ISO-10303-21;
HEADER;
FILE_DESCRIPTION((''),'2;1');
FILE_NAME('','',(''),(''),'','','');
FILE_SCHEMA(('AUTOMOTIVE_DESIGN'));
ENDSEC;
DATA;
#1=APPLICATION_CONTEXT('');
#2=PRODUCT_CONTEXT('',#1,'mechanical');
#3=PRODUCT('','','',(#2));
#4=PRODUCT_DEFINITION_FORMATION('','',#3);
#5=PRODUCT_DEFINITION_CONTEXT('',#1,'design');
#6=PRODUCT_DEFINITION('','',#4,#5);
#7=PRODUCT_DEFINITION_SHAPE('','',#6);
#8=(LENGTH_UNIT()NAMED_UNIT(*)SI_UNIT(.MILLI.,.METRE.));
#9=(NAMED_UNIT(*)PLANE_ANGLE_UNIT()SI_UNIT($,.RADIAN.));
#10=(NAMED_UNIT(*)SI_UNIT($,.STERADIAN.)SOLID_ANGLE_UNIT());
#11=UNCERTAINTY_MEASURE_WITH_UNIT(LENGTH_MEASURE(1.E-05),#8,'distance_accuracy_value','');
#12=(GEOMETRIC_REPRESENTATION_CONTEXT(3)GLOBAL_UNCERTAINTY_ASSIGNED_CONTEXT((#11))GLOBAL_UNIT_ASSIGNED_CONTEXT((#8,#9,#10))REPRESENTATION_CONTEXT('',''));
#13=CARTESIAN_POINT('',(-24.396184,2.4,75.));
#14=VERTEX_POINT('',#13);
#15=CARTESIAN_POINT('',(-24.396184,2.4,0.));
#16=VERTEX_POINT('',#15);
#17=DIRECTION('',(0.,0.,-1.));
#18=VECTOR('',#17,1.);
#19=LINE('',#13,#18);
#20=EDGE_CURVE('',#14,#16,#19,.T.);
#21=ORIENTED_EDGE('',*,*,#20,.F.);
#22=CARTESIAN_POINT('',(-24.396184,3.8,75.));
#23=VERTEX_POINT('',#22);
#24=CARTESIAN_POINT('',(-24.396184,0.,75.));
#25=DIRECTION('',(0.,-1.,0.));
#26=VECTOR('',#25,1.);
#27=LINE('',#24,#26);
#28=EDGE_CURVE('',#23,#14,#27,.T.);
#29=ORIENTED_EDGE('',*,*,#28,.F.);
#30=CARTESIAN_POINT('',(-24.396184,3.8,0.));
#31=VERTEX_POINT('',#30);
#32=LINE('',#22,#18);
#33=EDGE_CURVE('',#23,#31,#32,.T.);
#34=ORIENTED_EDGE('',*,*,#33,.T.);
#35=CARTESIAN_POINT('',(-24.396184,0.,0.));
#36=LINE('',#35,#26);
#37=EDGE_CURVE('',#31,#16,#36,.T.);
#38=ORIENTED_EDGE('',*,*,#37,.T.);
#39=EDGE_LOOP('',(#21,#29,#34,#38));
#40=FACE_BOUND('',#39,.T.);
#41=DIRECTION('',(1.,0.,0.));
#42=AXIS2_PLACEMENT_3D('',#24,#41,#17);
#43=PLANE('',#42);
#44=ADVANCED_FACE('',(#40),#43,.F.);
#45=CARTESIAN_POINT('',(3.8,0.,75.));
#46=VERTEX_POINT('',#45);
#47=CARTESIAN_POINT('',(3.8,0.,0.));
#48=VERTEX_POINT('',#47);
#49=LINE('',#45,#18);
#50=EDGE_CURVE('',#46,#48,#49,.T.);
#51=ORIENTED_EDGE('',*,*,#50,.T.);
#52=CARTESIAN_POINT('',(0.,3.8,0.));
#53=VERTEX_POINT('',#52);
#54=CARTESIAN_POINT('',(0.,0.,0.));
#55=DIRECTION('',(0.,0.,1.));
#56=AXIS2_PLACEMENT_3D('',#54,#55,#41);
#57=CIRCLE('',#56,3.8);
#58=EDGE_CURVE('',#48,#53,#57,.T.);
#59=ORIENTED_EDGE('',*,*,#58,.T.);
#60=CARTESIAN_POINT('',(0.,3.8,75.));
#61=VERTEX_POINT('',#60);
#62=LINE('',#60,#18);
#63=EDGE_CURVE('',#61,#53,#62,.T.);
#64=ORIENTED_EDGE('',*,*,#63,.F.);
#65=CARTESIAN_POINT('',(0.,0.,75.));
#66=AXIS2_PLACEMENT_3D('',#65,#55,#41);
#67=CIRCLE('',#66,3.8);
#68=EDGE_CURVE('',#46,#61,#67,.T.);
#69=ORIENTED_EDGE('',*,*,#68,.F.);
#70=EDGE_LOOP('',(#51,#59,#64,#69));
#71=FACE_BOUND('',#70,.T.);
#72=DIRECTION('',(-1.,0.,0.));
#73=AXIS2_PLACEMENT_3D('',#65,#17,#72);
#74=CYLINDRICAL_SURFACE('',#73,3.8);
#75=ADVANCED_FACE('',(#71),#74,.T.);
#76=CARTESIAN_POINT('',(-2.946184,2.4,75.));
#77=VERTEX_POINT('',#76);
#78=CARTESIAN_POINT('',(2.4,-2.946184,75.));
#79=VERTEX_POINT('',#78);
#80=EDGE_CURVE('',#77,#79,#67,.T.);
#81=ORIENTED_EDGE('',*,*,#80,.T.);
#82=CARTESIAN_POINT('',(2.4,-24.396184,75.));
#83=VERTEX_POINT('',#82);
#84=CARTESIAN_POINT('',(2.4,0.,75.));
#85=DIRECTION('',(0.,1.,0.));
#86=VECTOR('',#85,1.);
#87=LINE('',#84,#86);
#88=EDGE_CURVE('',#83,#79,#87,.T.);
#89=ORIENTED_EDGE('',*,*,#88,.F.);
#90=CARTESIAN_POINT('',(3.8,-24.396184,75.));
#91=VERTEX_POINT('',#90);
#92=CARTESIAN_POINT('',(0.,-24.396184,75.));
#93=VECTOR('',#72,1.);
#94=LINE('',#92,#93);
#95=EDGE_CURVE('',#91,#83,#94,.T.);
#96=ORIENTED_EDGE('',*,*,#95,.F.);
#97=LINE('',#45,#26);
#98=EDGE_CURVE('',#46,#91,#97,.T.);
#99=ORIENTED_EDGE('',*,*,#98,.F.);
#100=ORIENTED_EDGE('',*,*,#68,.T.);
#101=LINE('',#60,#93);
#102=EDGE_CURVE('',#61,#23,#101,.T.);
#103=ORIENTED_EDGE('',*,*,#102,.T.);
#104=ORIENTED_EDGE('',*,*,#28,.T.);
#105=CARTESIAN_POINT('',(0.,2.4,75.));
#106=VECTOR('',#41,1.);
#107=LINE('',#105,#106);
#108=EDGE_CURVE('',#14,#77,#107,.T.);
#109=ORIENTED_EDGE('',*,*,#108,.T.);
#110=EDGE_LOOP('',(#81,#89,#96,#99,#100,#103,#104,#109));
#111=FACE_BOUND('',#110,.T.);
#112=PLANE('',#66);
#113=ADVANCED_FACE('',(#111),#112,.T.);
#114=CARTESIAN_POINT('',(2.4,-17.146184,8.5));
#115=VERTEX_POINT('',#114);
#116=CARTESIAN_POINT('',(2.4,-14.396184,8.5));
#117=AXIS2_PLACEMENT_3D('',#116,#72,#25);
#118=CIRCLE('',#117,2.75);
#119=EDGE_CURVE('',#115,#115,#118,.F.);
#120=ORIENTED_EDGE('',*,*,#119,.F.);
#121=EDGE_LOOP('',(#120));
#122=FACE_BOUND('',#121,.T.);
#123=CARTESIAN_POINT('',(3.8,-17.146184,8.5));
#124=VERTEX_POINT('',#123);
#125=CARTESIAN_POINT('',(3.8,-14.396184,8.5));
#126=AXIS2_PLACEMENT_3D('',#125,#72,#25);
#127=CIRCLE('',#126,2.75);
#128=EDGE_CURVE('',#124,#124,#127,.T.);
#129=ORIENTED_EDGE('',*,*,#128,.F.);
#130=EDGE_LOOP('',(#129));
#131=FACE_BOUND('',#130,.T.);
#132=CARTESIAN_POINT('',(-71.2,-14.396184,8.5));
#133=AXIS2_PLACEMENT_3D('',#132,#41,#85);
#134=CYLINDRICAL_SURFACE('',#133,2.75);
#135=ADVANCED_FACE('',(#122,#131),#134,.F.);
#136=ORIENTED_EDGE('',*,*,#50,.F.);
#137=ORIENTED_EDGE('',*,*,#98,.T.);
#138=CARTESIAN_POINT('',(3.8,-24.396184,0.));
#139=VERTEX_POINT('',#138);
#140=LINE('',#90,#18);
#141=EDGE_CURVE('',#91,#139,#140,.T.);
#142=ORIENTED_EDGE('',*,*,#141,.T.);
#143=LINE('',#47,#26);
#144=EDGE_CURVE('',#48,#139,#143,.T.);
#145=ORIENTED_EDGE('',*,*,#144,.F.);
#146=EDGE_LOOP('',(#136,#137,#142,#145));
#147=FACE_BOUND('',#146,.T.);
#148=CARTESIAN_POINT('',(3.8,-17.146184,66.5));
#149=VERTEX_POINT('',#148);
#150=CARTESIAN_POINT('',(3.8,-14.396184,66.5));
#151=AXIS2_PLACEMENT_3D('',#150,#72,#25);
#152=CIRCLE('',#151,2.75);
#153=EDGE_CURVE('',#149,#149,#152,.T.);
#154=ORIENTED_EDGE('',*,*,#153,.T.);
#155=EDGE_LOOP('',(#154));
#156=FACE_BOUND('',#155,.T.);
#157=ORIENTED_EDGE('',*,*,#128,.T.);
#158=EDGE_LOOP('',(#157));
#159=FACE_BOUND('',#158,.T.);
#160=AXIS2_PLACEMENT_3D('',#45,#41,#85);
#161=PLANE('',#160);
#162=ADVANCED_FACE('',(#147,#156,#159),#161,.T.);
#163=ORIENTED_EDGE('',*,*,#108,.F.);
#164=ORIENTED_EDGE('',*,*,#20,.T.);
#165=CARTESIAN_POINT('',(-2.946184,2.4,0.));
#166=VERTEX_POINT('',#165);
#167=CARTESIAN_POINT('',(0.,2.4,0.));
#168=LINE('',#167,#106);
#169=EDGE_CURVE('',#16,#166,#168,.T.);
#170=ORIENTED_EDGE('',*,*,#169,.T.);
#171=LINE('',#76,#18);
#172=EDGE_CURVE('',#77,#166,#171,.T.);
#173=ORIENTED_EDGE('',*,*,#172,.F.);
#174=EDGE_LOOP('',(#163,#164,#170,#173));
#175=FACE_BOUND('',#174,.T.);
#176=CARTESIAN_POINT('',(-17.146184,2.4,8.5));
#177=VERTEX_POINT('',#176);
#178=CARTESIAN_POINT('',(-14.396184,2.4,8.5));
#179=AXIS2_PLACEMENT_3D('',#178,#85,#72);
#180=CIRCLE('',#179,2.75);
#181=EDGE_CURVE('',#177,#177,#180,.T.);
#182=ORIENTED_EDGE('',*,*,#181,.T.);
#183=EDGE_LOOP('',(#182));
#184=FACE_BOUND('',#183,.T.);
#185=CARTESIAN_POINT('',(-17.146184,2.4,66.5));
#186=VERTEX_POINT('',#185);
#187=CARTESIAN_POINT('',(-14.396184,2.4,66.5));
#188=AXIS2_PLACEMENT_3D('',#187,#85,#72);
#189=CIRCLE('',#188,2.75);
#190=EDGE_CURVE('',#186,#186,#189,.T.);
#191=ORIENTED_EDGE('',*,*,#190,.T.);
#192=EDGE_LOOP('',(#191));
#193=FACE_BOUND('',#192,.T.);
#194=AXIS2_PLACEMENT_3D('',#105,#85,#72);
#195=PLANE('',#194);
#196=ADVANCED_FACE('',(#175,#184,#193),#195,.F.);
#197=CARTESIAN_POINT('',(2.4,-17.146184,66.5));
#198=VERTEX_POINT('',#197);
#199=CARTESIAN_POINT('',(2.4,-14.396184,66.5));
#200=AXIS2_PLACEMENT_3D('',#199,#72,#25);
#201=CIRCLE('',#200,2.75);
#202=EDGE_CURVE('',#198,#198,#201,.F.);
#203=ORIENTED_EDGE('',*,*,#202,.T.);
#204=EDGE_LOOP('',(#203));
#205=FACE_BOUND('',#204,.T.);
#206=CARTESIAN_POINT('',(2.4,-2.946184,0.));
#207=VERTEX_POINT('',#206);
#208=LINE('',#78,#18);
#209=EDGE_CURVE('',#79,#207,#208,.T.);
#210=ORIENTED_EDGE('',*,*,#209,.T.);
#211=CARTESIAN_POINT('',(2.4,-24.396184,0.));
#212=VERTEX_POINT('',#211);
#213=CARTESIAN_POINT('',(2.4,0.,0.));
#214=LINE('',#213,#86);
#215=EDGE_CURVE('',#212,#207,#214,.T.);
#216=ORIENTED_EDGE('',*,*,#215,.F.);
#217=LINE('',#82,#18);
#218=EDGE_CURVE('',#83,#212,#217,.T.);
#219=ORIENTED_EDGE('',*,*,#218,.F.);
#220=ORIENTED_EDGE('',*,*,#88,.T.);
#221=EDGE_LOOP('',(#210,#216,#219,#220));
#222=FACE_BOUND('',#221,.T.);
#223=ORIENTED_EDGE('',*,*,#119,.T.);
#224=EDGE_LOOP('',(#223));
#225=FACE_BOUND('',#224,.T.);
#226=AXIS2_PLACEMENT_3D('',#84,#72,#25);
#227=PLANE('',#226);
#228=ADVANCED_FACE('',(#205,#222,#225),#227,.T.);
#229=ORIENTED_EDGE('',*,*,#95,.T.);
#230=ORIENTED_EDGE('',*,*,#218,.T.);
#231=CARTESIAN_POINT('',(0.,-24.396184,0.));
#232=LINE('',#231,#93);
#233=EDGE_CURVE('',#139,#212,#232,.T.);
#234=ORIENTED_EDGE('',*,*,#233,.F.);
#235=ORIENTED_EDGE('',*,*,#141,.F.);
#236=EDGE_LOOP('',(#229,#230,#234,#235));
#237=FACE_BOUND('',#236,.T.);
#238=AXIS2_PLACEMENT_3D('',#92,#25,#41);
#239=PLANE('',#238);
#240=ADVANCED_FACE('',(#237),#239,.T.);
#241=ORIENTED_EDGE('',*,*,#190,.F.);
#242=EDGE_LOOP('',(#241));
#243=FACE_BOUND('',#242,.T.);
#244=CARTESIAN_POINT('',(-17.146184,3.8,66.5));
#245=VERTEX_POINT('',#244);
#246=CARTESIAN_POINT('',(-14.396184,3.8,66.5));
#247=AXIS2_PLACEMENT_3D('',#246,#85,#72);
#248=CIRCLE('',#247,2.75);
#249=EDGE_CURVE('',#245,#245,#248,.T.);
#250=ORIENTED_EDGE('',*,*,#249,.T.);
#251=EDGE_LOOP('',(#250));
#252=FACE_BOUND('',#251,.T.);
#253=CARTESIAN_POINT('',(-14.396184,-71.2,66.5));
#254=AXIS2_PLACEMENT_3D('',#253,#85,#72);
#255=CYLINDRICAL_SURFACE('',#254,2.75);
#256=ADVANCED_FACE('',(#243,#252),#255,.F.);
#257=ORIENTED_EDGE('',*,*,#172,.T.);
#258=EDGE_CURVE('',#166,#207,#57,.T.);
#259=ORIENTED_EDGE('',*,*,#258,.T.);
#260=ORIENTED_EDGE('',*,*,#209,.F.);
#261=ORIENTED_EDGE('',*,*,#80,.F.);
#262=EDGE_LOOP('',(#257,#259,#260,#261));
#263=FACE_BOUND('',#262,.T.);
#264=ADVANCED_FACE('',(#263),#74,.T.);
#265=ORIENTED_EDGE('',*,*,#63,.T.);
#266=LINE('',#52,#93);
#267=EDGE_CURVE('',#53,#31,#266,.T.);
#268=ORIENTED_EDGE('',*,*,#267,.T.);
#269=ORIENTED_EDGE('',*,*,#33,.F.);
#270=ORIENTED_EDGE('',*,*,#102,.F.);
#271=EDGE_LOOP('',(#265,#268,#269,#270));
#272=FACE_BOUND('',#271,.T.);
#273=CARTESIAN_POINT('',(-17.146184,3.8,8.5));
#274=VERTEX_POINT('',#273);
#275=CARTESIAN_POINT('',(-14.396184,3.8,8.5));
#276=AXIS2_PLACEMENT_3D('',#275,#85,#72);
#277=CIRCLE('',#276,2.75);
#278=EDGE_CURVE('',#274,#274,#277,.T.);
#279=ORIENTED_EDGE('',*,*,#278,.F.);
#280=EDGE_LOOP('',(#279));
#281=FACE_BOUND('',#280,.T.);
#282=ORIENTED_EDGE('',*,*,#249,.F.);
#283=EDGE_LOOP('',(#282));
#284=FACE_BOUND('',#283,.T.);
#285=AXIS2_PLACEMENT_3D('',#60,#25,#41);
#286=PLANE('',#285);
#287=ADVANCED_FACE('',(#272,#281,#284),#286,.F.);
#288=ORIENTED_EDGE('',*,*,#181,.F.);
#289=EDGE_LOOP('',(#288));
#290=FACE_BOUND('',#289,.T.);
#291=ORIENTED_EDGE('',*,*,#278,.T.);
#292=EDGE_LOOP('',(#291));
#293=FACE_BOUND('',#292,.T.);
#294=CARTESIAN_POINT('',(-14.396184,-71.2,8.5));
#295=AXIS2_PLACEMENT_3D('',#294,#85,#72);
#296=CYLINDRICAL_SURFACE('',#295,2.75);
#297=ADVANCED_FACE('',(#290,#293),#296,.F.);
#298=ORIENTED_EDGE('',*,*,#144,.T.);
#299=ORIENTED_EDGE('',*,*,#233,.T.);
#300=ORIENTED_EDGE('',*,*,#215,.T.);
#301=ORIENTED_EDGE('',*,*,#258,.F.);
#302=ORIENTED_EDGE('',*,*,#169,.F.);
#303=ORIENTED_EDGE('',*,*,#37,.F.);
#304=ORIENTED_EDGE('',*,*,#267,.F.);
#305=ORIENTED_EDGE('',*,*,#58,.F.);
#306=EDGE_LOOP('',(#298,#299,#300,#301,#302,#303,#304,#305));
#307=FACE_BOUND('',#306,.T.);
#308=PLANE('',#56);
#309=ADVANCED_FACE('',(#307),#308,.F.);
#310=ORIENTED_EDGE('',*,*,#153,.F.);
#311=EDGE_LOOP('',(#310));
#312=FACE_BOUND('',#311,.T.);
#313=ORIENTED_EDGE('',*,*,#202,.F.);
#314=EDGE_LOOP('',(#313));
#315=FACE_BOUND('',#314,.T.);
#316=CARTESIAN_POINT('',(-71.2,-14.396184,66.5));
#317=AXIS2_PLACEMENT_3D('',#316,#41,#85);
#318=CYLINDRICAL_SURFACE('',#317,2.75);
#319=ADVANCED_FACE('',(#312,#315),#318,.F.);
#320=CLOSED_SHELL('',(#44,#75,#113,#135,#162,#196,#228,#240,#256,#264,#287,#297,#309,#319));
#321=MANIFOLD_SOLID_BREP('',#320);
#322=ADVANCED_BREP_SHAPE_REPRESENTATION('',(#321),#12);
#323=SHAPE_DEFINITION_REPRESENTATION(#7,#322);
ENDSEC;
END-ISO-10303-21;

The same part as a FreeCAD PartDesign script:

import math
import FreeCAD as App
import Part
import Sketcher
from FreeCAD import Vector
Q = App.Units.Quantity

doc = App.newDocument("Part")
body = doc.addObject("PartDesign::Body", "Body")

sketch1 = body.newObject("Sketcher::SketchObject", "Sketch")
sketch1.AttachmentSupport = (doc.getObject("XY_Plane"), [""])
sketch1.MapMode = "FlatFace"
sketch1.addGeometry([
    Part.LineSegment(Vector(-24.396184, 2.4, 0), Vector(-2.946184, 2.4, 0)),
    Part.ArcOfCircle(Part.Circle(Vector(0, 0, 0), Vector(0, 0, 1), 3.8), math.radians(140.833289), math.radians(309.166711)),
    Part.LineSegment(Vector(2.4, -2.946184, 0), Vector(2.4, -24.396184, 0)),
    Part.LineSegment(Vector(2.4, -24.396184, 0), Vector(3.8, -24.396184, 0)),
    Part.LineSegment(Vector(3.8, -24.396184, 0), Vector(3.8, 0, 0)),
    Part.ArcOfCircle(Part.Circle(Vector(0, 0, 0), Vector(0, 0, 1), 3.8), math.radians(0), math.radians(90)),
    Part.LineSegment(Vector(0, 3.8, 0), Vector(-24.396184, 3.8, 0)),
    Part.LineSegment(Vector(-24.396184, 3.8, 0), Vector(-24.396184, 2.4, 0)),
], False)
sketch1.addConstraint([
    Sketcher.Constraint("Coincident", 0, 2, 1, 1),
    Sketcher.Constraint("Coincident", 1, 2, 2, 1),
    Sketcher.Constraint("Coincident", 2, 2, 3, 1),
    Sketcher.Constraint("Coincident", 3, 2, 4, 1),
    Sketcher.Constraint("Tangent", 4, 2, 5, 1),
    Sketcher.Constraint("Tangent", 5, 2, 6, 1),
    Sketcher.Constraint("Coincident", 6, 2, 7, 1),
    Sketcher.Constraint("Coincident", 7, 2, 0, 1),
    Sketcher.Constraint("Horizontal", 0),
    Sketcher.Constraint("Vertical", 2),
    Sketcher.Constraint("Horizontal", 3),
    Sketcher.Constraint("Vertical", 4),
    Sketcher.Constraint("Horizontal", 6),
    Sketcher.Constraint("Vertical", 7),
    Sketcher.Constraint("Coincident", 1, 3, -1, 1),
    Sketcher.Constraint("Coincident", 5, 3, -1, 1),
    Sketcher.Constraint("Equal", 1, 5),
    Sketcher.Constraint("Equal", 0, 2),
    Sketcher.Constraint("Equal", 6, 4),
    Sketcher.Constraint("Radius", 1, Q("3.8 mm")),
    Sketcher.Constraint("DistanceX", 3, 1, 3, 2, Q("1.4 mm")),
    Sketcher.Constraint("DistanceX", 0, 1, 0, 2, Q("21.45 mm")),
])
pad1 = body.newObject("PartDesign::Pad", "Pad")
pad1.Profile = sketch1
pad1.Length = 75

sketch2 = body.newObject("Sketcher::SketchObject", "Sketch001")
sketch2.AttachmentSupport = (doc.getObject("XZ_Plane"), [""])
sketch2.MapMode = "FlatFace"
sketch2.AttachmentOffset = App.Placement(Vector(0, 0, -3.8), App.Rotation())
sketch2.addGeometry([
    Part.Circle(Vector(-14.396184, 8.5, 0), Vector(0, 0, 1), 2.75),
    Part.Circle(Vector(-14.396184, 66.5, 0), Vector(0, 0, 1), 2.75),
], False)
sketch2.addConstraint([
    Sketcher.Constraint("Equal", 0, 1),
    Sketcher.Constraint("Vertical", 0, 3, 1, 3),
    Sketcher.Constraint("Diameter", 0, Q("5.5 mm")),
    Sketcher.Constraint("DistanceY", 0, 3, 1, 3, Q("58 mm")),
    Sketcher.Constraint("DistanceY", -1, 1, 0, 3, Q("8.5 mm")),
    Sketcher.Constraint("DistanceX", 0, 3, -1, 1, Q("14.396184 mm")),
])
pocket1 = body.newObject("PartDesign::Pocket", "Pocket")
pocket1.Profile = sketch2
pocket1.Length = 75
pocket1.Reversed = True
doc.recompute()

datumplane = body.newObject("PartDesign::Plane", "DatumPlane")
datumplane.Placement = App.Placement(Vector(0, 0, 0), App.Rotation(Vector(0.707106781, 0.707106781, 0), Vector(0, 0, -1), Vector(-0.707106781, 0.707106781, 0), "ZXY"))
mirrored = body.newObject("PartDesign::Mirrored", "Mirrored")
mirrored.Originals = [pocket1]
mirrored.MirrorPlane = (datumplane, [""])
body.Tip = mirrored

doc.recompute()
